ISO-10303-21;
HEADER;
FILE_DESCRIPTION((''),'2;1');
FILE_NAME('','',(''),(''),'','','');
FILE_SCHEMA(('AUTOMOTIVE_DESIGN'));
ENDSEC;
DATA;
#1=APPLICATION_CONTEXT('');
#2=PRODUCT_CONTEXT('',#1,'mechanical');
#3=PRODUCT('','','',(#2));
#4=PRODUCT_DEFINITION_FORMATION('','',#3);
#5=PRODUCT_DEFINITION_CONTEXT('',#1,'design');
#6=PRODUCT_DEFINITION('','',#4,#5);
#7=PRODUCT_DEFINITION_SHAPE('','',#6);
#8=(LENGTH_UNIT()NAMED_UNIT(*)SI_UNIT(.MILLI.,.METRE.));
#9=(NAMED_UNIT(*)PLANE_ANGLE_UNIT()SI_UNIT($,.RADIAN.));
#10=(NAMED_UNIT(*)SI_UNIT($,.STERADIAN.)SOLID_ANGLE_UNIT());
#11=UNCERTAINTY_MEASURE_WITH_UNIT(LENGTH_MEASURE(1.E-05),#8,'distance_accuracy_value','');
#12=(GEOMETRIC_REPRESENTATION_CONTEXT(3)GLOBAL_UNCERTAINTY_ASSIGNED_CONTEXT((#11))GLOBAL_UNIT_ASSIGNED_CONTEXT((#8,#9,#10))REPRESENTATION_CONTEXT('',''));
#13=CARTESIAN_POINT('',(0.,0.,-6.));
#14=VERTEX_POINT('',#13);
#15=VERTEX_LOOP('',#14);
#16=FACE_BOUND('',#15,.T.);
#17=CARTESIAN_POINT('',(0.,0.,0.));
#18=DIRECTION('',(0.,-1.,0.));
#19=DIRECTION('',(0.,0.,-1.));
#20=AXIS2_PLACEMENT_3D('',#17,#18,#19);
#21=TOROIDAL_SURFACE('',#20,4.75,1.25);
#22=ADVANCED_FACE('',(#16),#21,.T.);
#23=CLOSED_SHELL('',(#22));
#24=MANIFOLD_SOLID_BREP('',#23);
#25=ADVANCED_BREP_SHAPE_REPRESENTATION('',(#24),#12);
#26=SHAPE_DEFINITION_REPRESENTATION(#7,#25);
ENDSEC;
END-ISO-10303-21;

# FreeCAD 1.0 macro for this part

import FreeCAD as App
import Part
import Sketcher
from FreeCAD import Vector

doc = App.newDocument("Part")
body = doc.addObject("PartDesign::Body", "Body")

# Sketch on XY plane
sketch1 = body.newObject("Sketcher::SketchObject", "Sketch")
sketch1.AttachmentSupport = (doc.getObject("XY_Plane"), [""])
sketch1.MapMode = "FlatFace"
sketch1.addGeometry(Part.Circle(Vector(4.75, 0, 0), Vector(0, 0, 1), 1.25), False)
sketch1.addConstraint(Sketcher.Constraint("PointOnObject", 0, 3, -1))
sketch1.addConstraint(Sketcher.Constraint("Diameter", 0, 2.5))
sketch1.addConstraint(Sketcher.Constraint("DistanceX", -1, 1, 0, 3, 4.75))
revolution = body.newObject("PartDesign::Revolution", "Revolution")
revolution.Profile = sketch1
revolution.ReferenceAxis = (sketch1, ["V_Axis"])
revolution.Angle = 360

doc.recompute()
